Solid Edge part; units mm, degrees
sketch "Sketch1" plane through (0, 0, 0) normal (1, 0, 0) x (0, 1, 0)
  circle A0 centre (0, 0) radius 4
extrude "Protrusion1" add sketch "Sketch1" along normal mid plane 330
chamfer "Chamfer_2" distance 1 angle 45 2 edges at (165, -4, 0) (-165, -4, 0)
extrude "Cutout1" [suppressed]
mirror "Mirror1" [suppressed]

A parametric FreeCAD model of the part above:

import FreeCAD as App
import Part
import Sketcher
Q = App.Units.Quantity


def edges_at(feature, points):
    """Names of the edges that pass closest to the given points."""
    edges = feature.Shape.Edges
    near = lambda p: min(range(len(edges)), key=lambda i: edges[i].distToShape(Part.Vertex(*p))[0])
    return sorted({f"Edge{near(p) + 1}" for p in points})

doc = App.newDocument("Part")
body = doc.addObject("PartDesign::Body", "Body")

sketch1 = body.newObject("Sketcher::SketchObject", "Sketch")
sketch1.AttachmentSupport = (doc.getObject("YZ_Plane"), [""])
sketch1.MapMode = "FlatFace"
sketch1.addGeometry(Part.Circle(App.Vector(0, 0, 0), App.Vector(0, 0, 1), 4), False)
sketch1.addConstraint([
    Sketcher.Constraint("Coincident", 0, 3, -1, 1),
    Sketcher.Constraint("Diameter", 0, Q("8 mm")),
])
pad1 = body.newObject("PartDesign::Pad", "Pad")
pad1.Profile = sketch1
pad1.Length = 330
pad1.Midplane = True
doc.recompute()

chamfer = body.newObject("PartDesign::Chamfer", "Chamfer")
chamfer.Base = (pad1, edges_at(pad1, [(165, -4, 0), (-165, -4, 0)]))
chamfer.Size = 1

doc.recompute()
